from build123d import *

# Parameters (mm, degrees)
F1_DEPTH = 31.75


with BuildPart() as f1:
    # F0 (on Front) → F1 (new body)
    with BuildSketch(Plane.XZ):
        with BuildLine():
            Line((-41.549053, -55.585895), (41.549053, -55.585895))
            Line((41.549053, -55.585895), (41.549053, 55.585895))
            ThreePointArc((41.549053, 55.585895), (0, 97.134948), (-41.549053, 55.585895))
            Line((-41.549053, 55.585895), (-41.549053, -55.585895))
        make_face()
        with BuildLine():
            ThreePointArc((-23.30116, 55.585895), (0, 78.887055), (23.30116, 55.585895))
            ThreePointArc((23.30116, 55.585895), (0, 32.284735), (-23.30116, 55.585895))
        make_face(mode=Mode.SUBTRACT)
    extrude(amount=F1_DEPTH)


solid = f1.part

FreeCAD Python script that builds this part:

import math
import FreeCAD as App
import Part
import Sketcher
Q = App.Units.Quantity

doc = App.newDocument("Part")
body = doc.addObject("PartDesign::Body", "Body")

# Sketch on XZ plane
sketch1 = body.newObject("Sketcher::SketchObject", "Sketch")
sketch1.AttachmentSupport = (doc.getObject("XZ_Plane"), [""])
sketch1.MapMode = "FlatFace"
sketch1.addGeometry(Part.LineSegment(App.Vector(-41.549053, -55.585895, 0), App.Vector(41.549053, -55.585895, 0)), False)
sketch1.addGeometry(Part.LineSegment(App.Vector(41.549053, -55.585895, 0), App.Vector(41.549053, 55.585895, 0)), False)
sketch1.addGeometry(Part.ArcOfCircle(Part.Circle(App.Vector(0, 55.585895, 0), App.Vector(0, 0, 1), 41.549053), math.radians(0), math.radians(180)), False)
sketch1.addGeometry(Part.LineSegment(App.Vector(-41.549053, 55.585895, 0), App.Vector(-41.549053, -55.585895, 0)), False)
sketch1.addGeometry(Part.Circle(App.Vector(0, 55.585895, 0), App.Vector(0, 0, 1), 23.30116), False)
sketch1.addConstraint(Sketcher.Constraint("Coincident", 0, 2, 1, 1))
sketch1.addConstraint(Sketcher.Constraint("Tangent", 1, 2, 2, 1))
sketch1.addConstraint(Sketcher.Constraint("Tangent", 2, 2, 3, 1))
sketch1.addConstraint(Sketcher.Constraint("Coincident", 3, 2, 0, 1))
sketch1.addConstraint(Sketcher.Constraint("Horizontal", 0))
sketch1.addConstraint(Sketcher.Constraint("Vertical", 1))
sketch1.addConstraint(Sketcher.Constraint("Vertical", 3))
sketch1.addConstraint(Sketcher.Constraint("Coincident", 4, 3, 2, 3))
sketch1.addConstraint(Sketcher.Constraint("Symmetric", 0, 2, 2, 2, -1, 1))
sketch1.addConstraint(Sketcher.Constraint("Diameter", 4, 46.60232))
sketch1.addConstraint(Sketcher.Constraint("Radius", 2, 41.549053))
sketch1.addConstraint(Sketcher.Constraint("DistanceY", 1, 1, 1, 2, 111.17179))
pad1 = body.newObject("PartDesign::Pad", "Pad")
pad1.Profile = sketch1
pad1.Length = Q("1.25 in")

doc.recompute()
